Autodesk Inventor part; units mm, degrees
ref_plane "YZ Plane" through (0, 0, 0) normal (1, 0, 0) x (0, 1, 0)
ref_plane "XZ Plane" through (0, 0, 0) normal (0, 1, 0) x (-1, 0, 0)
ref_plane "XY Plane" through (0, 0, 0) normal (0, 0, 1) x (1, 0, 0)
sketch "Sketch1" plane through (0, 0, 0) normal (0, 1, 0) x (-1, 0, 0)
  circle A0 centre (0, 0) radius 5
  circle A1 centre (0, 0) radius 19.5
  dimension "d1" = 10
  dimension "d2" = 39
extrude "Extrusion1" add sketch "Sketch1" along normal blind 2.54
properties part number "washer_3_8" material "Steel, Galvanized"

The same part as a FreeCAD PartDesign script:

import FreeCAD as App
import Part
import Sketcher

V = App.Vector
Q = App.Units.Quantity

doc = App.newDocument("Part")
body = doc.addObject("PartDesign::Body", "Body")

sketch1 = body.newObject("Sketcher::SketchObject", "Sketch")
sketch1.AttachmentSupport = (doc.getObject("XZ_Plane"), [""])
sketch1.MapMode = "FlatFace"
sketch1.addGeometry([
    Part.Circle(V(0, 0, 0), V(0, 0, 1), 19.5),
    Part.Circle(V(0, 0, 0), V(0, 0, 1), 5),
], False)
sketch1.addConstraint([
    Sketcher.Constraint("Coincident", 0, 3, -1, 1),
    Sketcher.Constraint("Coincident", 1, 3, -1, 1),
    Sketcher.Constraint("Diameter", 0, Q("39 mm")),
    Sketcher.Constraint("Diameter", 1, Q("10 mm")),
])
pad1 = body.newObject("PartDesign::Pad", "Pad")
pad1.Profile = sketch1
pad1.Length = 2.54
pad1.Reversed = True

doc.recompute()
